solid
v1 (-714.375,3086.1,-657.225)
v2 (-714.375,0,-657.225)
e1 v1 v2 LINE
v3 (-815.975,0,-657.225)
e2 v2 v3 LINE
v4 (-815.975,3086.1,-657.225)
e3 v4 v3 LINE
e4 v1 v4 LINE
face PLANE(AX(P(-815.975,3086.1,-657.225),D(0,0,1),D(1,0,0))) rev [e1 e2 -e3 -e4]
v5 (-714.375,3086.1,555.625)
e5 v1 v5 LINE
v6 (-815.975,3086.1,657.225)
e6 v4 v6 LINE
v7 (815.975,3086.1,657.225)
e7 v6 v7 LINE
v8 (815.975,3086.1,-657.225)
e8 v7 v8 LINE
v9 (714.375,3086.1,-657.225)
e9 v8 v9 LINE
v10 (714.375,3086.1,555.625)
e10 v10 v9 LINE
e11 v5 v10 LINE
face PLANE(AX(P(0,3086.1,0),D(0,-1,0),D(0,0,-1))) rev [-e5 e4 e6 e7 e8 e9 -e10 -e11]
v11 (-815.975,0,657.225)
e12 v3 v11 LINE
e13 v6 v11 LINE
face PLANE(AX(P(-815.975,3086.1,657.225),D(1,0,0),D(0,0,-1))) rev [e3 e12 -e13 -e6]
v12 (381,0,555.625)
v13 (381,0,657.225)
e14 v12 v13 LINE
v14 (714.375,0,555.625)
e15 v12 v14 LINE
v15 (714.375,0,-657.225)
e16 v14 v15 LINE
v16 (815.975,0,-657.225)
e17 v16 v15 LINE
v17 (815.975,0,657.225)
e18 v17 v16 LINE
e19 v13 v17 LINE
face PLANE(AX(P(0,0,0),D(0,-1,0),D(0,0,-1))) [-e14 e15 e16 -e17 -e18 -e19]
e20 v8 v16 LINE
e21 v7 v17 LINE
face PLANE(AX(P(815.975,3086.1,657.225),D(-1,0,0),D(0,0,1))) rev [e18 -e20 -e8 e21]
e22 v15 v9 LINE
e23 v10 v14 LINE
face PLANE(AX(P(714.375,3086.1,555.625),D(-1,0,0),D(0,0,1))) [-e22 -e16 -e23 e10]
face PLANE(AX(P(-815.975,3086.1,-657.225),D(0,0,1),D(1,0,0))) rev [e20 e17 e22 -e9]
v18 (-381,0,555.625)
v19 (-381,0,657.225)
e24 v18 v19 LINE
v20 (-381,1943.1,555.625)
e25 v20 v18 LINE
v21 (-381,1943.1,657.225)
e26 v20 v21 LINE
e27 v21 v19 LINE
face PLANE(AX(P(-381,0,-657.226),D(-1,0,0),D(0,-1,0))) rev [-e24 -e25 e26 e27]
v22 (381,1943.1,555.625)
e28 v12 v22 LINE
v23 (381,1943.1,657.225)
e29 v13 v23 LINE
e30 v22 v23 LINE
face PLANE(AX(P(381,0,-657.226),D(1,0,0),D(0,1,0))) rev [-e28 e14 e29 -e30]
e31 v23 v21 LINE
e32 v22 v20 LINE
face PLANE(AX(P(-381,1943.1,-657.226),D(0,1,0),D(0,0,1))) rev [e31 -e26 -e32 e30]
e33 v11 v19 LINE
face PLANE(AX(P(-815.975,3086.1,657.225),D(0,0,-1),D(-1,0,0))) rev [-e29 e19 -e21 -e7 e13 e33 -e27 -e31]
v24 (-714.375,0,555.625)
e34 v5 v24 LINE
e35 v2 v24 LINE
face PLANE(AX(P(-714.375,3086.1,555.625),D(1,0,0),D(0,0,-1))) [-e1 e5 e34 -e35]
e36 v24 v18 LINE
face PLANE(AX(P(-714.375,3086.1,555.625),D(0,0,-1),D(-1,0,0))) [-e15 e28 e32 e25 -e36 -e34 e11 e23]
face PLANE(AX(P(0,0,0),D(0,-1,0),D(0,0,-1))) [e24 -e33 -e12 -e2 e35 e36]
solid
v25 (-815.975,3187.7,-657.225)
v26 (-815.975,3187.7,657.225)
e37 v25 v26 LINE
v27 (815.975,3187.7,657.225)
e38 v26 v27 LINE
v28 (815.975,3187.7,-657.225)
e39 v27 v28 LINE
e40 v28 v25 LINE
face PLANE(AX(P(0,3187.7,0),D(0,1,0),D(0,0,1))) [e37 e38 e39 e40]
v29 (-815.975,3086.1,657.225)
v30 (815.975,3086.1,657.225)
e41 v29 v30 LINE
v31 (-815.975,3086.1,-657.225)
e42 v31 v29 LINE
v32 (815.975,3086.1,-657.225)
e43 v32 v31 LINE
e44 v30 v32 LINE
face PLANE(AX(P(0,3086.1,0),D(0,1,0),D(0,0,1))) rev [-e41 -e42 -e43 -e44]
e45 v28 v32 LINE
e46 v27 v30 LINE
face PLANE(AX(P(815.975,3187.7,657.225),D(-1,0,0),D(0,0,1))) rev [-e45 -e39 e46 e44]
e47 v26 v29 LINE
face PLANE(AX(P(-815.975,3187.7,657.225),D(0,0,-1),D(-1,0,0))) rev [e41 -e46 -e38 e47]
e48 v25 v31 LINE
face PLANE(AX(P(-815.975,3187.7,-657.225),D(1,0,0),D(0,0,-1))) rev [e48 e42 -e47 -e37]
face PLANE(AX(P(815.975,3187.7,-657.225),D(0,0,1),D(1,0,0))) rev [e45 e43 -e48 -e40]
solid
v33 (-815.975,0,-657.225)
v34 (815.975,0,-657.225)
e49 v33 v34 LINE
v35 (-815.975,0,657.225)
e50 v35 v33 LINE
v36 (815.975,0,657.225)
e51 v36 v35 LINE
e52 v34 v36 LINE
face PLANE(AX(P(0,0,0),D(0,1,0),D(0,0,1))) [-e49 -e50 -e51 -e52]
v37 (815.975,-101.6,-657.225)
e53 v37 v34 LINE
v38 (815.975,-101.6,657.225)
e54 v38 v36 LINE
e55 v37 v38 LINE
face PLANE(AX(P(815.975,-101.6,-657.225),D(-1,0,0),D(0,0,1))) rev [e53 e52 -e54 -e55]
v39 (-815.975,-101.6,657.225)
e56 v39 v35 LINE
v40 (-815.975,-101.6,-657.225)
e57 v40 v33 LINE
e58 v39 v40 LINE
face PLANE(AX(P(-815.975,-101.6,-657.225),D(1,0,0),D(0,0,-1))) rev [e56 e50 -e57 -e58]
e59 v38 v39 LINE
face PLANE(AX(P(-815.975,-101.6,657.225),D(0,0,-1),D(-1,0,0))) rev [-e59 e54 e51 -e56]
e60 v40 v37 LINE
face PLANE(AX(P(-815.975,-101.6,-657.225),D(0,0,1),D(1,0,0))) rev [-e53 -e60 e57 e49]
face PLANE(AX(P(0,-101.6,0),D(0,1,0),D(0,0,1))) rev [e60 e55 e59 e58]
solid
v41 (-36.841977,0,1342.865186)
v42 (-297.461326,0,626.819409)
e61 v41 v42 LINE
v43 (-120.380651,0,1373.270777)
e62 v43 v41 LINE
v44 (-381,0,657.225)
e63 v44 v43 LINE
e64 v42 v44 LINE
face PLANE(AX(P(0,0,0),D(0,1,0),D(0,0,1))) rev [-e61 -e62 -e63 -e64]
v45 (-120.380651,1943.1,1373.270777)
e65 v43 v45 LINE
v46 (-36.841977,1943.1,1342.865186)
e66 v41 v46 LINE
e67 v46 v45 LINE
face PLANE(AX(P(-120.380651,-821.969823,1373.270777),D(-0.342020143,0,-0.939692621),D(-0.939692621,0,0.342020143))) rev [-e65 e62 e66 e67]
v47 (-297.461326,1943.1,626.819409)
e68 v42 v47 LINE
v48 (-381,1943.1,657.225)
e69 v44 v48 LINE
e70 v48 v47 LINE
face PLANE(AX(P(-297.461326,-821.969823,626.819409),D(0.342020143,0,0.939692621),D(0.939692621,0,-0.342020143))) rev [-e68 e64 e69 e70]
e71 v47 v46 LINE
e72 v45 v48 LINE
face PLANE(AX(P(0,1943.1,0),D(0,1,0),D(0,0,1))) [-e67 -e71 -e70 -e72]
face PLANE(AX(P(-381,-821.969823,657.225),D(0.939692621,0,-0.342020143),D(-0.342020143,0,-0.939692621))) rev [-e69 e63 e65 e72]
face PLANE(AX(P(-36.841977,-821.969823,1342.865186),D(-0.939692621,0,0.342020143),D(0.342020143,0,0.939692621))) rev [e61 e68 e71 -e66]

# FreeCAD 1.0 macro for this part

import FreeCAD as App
import Part
import Sketcher

V = App.Vector
Q = App.Units.Quantity


def add_polygon(sketch, points):
    """Adds a closed chain of lines whose ends are joined by coincident constraints."""
    first, n = sketch.GeometryCount, len(points)
    for a, b in zip(points, points[1:] + points[:1]):
        sketch.addGeometry(Part.LineSegment(App.Vector(*a, 0), App.Vector(*b, 0)), False)
    for i in range(n):
        sketch.addConstraint(Sketcher.Constraint("Coincident", first + i, 2, first + (i + 1) % n, 1))

doc = App.newDocument("Part")
body = doc.addObject("PartDesign::Body", "Body")

sketch1 = body.newObject("Sketcher::SketchObject", "Sketch")
sketch1.AttachmentSupport = (doc.getObject("XZ_Plane"), [""])
sketch1.MapMode = "FlatFace"
add_polygon(sketch1, [(-816, -657), (-816, 657), (816, 657), (816, -657)])
add_polygon(sketch1, [(714, 556), (-714, 556), (-714, -556), (714, -556)])
sketch1.addConstraint(Sketcher.Constraint("Vertical", 0))
sketch1.addConstraint(Sketcher.Constraint("Horizontal", 1))
sketch1.addConstraint(Sketcher.Constraint("Vertical", 2))
sketch1.addConstraint(Sketcher.Constraint("Horizontal", 3))
sketch1.addConstraint(Sketcher.Constraint("Horizontal", 4))
sketch1.addConstraint(Sketcher.Constraint("Vertical", 5))
sketch1.addConstraint(Sketcher.Constraint("Horizontal", 6))
sketch1.addConstraint(Sketcher.Constraint("Vertical", 7))
sketch1.addConstraint(Sketcher.Constraint("Symmetric", 0, 2, 2, 2, -1, 1))
sketch1.addConstraint(Sketcher.Constraint("Symmetric", 4, 2, 6, 2, -1, 1))
sketch1.addConstraint(Sketcher.Constraint("DistanceX", 0, 2, 4, 2, Q("4 in")))
sketch1.addConstraint(Sketcher.Constraint("DistanceY", 4, 2, 0, 2, Q("4 in")))
sketch1.addConstraint(Sketcher.Constraint("DistanceX", 1, 1, 1, 2, Q("64.25 in")))
sketch1.addConstraint(Sketcher.Constraint("DistanceY", 0, 1, 0, 2, Q("51.75 in")))
pad1 = body.newObject("PartDesign::Pad", "Pad")
pad1.Profile = sketch1
pad1.Length = Q("121.5 in")
pad1.Reversed = True

sketch2 = body.newObject("Sketcher::SketchObject", "Sketch001")
sketch2.AttachmentSupport = (doc.getObject("XY_Plane"), [""])
sketch2.MapMode = "FlatFace"
sketch2.AttachmentOffset = App.Placement(V(0, 0, 25.875 * 25.4), App.Rotation())
add_polygon(sketch2, [(-381, 1943), (-381, 0), (381, 0), (381, 1943)])
sketch2.addConstraint(Sketcher.Constraint("Vertical", 0))
sketch2.addConstraint(Sketcher.Constraint("Horizontal", 1))
sketch2.addConstraint(Sketcher.Constraint("Vertical", 2))
sketch2.addConstraint(Sketcher.Constraint("Horizontal", 3))
sketch2.addConstraint(Sketcher.Constraint("Symmetric", 0, 2, 1, 2, -1, 1))
sketch2.addConstraint(Sketcher.Constraint("DistanceX", 1, 1, 1, 2, Q("30 in")))
sketch2.addConstraint(Sketcher.Constraint("DistanceY", 0, 2, 0, 1, Q("76.5 in")))
pocket1 = body.newObject("PartDesign::Pocket", "Pocket")
pocket1.Profile = sketch2
pocket1.Length = Q("4 in")

sketch3 = body.newObject("Sketcher::SketchObject", "Sketch002")
sketch3.AttachmentSupport = (doc.getObject("XY_Plane"), [""])
sketch3.MapMode = "FlatFace"
sketch3.AttachmentOffset = App.Placement(V(0, 0, -21.875 * 25.4), App.Rotation())
add_polygon(sketch3, [(-714, 3086), (-714, 0), (714, 0), (714, 3086)])
sketch3.addConstraint(Sketcher.Constraint("Vertical", 0))
sketch3.addConstraint(Sketcher.Constraint("Horizontal", 1))
sketch3.addConstraint(Sketcher.Constraint("Vertical", 2))
sketch3.addConstraint(Sketcher.Constraint("Horizontal", 3))
sketch3.addConstraint(Sketcher.Constraint("Symmetric", 0, 2, 1, 2, -1, 1))
sketch3.addConstraint(Sketcher.Constraint("DistanceY", 0, 2, 0, 1, Q("121.5 in")))
sketch3.addConstraint(Sketcher.Constraint("DistanceX", 1, 1, 1, 2, Q("56.25 in")))
pocket2 = body.newObject("PartDesign::Pocket", "Pocket001")
pocket2.Profile = sketch3
pocket2.Type = "ThroughAll"
body2 = doc.addObject("PartDesign::Body", "Body001")

sketch4 = body2.newObject("Sketcher::SketchObject", "Sketch003")
sketch4.AttachmentSupport = (doc.getObject("XZ_Plane001"), [""])
sketch4.MapMode = "FlatFace"
sketch4.AttachmentOffset = App.Placement(V(0, 0, -121.5 * 25.4), App.Rotation())
add_polygon(sketch4, [(-816, -657), (-816, 657), (816, 657), (816, -657)])
sketch4.addConstraint(Sketcher.Constraint("Vertical", 0))
sketch4.addConstraint(Sketcher.Constraint("Horizontal", 1))
sketch4.addConstraint(Sketcher.Constraint("Vertical", 2))
sketch4.addConstraint(Sketcher.Constraint("Horizontal", 3))
sketch4.addConstraint(Sketcher.Constraint("Symmetric", 0, 2, 2, 2, -1, 1))
sketch4.addConstraint(Sketcher.Constraint("DistanceX", 1, 1, 1, 2, Q("64.25 in")))
sketch4.addConstraint(Sketcher.Constraint("DistanceY", 0, 1, 0, 2, Q("51.75 in")))
pad2 = body2.newObject("PartDesign::Pad", "Pad001")
pad2.Profile = sketch4
pad2.Length = Q("4 in")
pad2.Reversed = True
body3 = doc.addObject("PartDesign::Body", "Body002")

sketch5 = body3.newObject("Sketcher::SketchObject", "Sketch004")
sketch5.AttachmentSupport = (doc.getObject("XZ_Plane002"), [""])
sketch5.MapMode = "FlatFace"
add_polygon(sketch5, [(-816, 657), (-816, -657), (816, -657), (816, 657)])
sketch5.addConstraint(Sketcher.Constraint("Vertical", 0))
sketch5.addConstraint(Sketcher.Constraint("Horizontal", 1))
sketch5.addConstraint(Sketcher.Constraint("Vertical", 2))
sketch5.addConstraint(Sketcher.Constraint("Horizontal", 3))
sketch5.addConstraint(Sketcher.Constraint("Symmetric", 0, 2, 2, 2, -1, 1))
sketch5.addConstraint(Sketcher.Constraint("DistanceX", 1, 1, 1, 2, Q("64.25 in")))
sketch5.addConstraint(Sketcher.Constraint("DistanceY", 0, 2, 0, 1, Q("51.75 in")))
pad3 = body3.newObject("PartDesign::Pad", "Pad002")
pad3.Profile = sketch5
pad3.Length = Q("4 in")
body4 = doc.addObject("PartDesign::Body", "Body003")

sketch6 = body4.newObject("Sketcher::SketchObject", "Sketch005")
sketch6.AttachmentSupport = (doc.getObject("XZ_Plane003"), [""])
sketch6.MapMode = "FlatFace"
sketch6.AttachmentOffset = App.Placement(V(0, 0, -76.5 * 25.4), App.Rotation())
add_polygon(sketch6, [(-120, 1373), (-381, 657), (-297, 627), (-37, 1343)])
sketch6.addConstraint(Sketcher.Constraint("Perpendicular", 0, 1))
sketch6.addConstraint(Sketcher.Constraint("Perpendicular", 1, 2))
sketch6.addConstraint(Sketcher.Constraint("Perpendicular", 2, 3))
sketch6.addConstraint(Sketcher.Constraint("Distance", 0, Q("30 in")))
sketch6.addConstraint(Sketcher.Constraint("DistanceX", 0, 2, -1, 1, Q("15 in")))
sketch6.addConstraint(Sketcher.Constraint("Angle", 0, Q("-110 deg")))
sketch6.addConstraint(Sketcher.Constraint("Distance", 1, Q("3.5 in")))
sketch6.addConstraint(Sketcher.Constraint("DistanceY", -1, 1, 0, 2, Q("25.875 in")))
pad4 = body4.newObject("PartDesign::Pad", "Pad003")
pad4.Profile = sketch6
pad4.Length = Q("76.5 in")

doc.recompute()
